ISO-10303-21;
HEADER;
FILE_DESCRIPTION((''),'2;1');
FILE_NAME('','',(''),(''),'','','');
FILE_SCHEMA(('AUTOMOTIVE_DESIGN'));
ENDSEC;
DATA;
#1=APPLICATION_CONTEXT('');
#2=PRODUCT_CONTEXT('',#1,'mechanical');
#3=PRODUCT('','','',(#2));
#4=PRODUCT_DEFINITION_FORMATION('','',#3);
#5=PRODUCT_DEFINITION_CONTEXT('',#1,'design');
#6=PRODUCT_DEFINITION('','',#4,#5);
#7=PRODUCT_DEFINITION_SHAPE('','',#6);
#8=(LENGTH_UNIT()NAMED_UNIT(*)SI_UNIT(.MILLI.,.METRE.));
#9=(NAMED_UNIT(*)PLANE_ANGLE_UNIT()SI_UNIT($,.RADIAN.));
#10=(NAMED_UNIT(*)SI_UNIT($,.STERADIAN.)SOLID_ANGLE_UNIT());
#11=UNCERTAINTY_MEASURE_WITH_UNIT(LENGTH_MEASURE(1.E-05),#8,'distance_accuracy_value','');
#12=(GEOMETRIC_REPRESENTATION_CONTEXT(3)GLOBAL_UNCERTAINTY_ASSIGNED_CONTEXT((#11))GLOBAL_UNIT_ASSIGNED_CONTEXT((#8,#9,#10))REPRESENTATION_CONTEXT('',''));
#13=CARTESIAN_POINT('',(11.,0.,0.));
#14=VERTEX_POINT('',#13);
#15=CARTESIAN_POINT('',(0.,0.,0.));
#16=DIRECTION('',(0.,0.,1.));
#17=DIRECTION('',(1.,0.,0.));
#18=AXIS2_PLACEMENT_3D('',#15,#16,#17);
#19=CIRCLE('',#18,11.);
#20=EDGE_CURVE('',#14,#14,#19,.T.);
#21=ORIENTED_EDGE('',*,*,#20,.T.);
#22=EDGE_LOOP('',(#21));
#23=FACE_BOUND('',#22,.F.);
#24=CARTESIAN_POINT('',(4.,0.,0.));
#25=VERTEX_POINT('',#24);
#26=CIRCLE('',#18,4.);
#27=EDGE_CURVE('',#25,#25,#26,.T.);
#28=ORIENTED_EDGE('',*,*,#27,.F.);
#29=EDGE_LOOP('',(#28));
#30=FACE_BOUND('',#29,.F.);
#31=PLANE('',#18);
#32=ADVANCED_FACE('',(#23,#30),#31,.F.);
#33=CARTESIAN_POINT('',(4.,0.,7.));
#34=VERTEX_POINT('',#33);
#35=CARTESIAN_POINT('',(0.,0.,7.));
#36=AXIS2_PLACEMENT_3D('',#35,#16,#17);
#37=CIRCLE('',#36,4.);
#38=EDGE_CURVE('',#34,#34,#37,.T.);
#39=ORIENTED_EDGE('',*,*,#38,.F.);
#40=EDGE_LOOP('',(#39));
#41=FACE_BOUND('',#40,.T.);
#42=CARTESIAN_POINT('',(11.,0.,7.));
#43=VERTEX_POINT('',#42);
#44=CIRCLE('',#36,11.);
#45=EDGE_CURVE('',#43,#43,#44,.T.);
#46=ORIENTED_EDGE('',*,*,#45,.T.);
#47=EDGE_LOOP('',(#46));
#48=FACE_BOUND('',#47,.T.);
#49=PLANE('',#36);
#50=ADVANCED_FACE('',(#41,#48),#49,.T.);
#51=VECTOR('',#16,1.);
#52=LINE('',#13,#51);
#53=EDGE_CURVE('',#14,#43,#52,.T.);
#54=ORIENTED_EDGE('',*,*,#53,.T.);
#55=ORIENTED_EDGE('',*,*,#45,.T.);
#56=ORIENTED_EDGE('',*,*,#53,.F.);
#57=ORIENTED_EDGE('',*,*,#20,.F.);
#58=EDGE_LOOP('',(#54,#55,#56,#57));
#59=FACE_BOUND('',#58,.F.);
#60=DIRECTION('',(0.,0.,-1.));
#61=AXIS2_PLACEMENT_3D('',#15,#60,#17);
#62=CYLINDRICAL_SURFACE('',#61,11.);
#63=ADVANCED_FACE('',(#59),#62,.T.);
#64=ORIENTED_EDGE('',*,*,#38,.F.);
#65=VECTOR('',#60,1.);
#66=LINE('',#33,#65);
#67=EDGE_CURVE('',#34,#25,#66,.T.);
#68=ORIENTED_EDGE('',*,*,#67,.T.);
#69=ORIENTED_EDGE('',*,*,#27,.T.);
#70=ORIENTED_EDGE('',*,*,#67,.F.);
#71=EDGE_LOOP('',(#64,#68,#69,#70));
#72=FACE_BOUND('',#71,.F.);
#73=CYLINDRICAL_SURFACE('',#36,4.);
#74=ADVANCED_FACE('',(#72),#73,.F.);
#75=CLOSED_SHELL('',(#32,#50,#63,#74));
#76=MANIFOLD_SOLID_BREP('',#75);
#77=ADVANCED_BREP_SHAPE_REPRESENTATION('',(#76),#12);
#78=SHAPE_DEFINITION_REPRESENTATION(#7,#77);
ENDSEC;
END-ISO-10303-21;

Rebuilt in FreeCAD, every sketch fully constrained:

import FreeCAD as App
import Part
import Sketcher
from FreeCAD import Vector

doc = App.newDocument("Part")
body = doc.addObject("PartDesign::Body", "Body")

sketch1 = body.newObject("Sketcher::SketchObject", "Sketch")
sketch1.AttachmentSupport = (doc.getObject("XY_Plane"), [""])
sketch1.MapMode = "FlatFace"
sketch1.addGeometry(Part.Circle(Vector(0, 0, 0), Vector(0, 0, 1), 11), False)
sketch1.addConstraint([
    Sketcher.Constraint("Coincident", 0, 3, -1, 1),
    Sketcher.Constraint("Diameter", 0, 22.0),
])
pad1 = body.newObject("PartDesign::Pad", "Pad")
pad1.Profile = sketch1
pad1.Length = 7

sketch2 = body.newObject("Sketcher::SketchObject", "Sketch001")
sketch2.AttachmentSupport = (doc.getObject("XY_Plane"), [""])
sketch2.MapMode = "FlatFace"
sketch2.AttachmentOffset = App.Placement(Vector(0, 0, 7), App.Rotation())
sketch2.addGeometry(Part.Circle(Vector(0, 0, 0), Vector(0, 0, 1), 4), False)
sketch2.addConstraint([
    Sketcher.Constraint("Coincident", 0, 3, -1, 1),
    Sketcher.Constraint("Diameter", 0, 8.0),
])
pocket1 = body.newObject("PartDesign::Pocket", "Pocket")
pocket1.Profile = sketch2
pocket1.Type = "ThroughAll"

doc.recompute()
